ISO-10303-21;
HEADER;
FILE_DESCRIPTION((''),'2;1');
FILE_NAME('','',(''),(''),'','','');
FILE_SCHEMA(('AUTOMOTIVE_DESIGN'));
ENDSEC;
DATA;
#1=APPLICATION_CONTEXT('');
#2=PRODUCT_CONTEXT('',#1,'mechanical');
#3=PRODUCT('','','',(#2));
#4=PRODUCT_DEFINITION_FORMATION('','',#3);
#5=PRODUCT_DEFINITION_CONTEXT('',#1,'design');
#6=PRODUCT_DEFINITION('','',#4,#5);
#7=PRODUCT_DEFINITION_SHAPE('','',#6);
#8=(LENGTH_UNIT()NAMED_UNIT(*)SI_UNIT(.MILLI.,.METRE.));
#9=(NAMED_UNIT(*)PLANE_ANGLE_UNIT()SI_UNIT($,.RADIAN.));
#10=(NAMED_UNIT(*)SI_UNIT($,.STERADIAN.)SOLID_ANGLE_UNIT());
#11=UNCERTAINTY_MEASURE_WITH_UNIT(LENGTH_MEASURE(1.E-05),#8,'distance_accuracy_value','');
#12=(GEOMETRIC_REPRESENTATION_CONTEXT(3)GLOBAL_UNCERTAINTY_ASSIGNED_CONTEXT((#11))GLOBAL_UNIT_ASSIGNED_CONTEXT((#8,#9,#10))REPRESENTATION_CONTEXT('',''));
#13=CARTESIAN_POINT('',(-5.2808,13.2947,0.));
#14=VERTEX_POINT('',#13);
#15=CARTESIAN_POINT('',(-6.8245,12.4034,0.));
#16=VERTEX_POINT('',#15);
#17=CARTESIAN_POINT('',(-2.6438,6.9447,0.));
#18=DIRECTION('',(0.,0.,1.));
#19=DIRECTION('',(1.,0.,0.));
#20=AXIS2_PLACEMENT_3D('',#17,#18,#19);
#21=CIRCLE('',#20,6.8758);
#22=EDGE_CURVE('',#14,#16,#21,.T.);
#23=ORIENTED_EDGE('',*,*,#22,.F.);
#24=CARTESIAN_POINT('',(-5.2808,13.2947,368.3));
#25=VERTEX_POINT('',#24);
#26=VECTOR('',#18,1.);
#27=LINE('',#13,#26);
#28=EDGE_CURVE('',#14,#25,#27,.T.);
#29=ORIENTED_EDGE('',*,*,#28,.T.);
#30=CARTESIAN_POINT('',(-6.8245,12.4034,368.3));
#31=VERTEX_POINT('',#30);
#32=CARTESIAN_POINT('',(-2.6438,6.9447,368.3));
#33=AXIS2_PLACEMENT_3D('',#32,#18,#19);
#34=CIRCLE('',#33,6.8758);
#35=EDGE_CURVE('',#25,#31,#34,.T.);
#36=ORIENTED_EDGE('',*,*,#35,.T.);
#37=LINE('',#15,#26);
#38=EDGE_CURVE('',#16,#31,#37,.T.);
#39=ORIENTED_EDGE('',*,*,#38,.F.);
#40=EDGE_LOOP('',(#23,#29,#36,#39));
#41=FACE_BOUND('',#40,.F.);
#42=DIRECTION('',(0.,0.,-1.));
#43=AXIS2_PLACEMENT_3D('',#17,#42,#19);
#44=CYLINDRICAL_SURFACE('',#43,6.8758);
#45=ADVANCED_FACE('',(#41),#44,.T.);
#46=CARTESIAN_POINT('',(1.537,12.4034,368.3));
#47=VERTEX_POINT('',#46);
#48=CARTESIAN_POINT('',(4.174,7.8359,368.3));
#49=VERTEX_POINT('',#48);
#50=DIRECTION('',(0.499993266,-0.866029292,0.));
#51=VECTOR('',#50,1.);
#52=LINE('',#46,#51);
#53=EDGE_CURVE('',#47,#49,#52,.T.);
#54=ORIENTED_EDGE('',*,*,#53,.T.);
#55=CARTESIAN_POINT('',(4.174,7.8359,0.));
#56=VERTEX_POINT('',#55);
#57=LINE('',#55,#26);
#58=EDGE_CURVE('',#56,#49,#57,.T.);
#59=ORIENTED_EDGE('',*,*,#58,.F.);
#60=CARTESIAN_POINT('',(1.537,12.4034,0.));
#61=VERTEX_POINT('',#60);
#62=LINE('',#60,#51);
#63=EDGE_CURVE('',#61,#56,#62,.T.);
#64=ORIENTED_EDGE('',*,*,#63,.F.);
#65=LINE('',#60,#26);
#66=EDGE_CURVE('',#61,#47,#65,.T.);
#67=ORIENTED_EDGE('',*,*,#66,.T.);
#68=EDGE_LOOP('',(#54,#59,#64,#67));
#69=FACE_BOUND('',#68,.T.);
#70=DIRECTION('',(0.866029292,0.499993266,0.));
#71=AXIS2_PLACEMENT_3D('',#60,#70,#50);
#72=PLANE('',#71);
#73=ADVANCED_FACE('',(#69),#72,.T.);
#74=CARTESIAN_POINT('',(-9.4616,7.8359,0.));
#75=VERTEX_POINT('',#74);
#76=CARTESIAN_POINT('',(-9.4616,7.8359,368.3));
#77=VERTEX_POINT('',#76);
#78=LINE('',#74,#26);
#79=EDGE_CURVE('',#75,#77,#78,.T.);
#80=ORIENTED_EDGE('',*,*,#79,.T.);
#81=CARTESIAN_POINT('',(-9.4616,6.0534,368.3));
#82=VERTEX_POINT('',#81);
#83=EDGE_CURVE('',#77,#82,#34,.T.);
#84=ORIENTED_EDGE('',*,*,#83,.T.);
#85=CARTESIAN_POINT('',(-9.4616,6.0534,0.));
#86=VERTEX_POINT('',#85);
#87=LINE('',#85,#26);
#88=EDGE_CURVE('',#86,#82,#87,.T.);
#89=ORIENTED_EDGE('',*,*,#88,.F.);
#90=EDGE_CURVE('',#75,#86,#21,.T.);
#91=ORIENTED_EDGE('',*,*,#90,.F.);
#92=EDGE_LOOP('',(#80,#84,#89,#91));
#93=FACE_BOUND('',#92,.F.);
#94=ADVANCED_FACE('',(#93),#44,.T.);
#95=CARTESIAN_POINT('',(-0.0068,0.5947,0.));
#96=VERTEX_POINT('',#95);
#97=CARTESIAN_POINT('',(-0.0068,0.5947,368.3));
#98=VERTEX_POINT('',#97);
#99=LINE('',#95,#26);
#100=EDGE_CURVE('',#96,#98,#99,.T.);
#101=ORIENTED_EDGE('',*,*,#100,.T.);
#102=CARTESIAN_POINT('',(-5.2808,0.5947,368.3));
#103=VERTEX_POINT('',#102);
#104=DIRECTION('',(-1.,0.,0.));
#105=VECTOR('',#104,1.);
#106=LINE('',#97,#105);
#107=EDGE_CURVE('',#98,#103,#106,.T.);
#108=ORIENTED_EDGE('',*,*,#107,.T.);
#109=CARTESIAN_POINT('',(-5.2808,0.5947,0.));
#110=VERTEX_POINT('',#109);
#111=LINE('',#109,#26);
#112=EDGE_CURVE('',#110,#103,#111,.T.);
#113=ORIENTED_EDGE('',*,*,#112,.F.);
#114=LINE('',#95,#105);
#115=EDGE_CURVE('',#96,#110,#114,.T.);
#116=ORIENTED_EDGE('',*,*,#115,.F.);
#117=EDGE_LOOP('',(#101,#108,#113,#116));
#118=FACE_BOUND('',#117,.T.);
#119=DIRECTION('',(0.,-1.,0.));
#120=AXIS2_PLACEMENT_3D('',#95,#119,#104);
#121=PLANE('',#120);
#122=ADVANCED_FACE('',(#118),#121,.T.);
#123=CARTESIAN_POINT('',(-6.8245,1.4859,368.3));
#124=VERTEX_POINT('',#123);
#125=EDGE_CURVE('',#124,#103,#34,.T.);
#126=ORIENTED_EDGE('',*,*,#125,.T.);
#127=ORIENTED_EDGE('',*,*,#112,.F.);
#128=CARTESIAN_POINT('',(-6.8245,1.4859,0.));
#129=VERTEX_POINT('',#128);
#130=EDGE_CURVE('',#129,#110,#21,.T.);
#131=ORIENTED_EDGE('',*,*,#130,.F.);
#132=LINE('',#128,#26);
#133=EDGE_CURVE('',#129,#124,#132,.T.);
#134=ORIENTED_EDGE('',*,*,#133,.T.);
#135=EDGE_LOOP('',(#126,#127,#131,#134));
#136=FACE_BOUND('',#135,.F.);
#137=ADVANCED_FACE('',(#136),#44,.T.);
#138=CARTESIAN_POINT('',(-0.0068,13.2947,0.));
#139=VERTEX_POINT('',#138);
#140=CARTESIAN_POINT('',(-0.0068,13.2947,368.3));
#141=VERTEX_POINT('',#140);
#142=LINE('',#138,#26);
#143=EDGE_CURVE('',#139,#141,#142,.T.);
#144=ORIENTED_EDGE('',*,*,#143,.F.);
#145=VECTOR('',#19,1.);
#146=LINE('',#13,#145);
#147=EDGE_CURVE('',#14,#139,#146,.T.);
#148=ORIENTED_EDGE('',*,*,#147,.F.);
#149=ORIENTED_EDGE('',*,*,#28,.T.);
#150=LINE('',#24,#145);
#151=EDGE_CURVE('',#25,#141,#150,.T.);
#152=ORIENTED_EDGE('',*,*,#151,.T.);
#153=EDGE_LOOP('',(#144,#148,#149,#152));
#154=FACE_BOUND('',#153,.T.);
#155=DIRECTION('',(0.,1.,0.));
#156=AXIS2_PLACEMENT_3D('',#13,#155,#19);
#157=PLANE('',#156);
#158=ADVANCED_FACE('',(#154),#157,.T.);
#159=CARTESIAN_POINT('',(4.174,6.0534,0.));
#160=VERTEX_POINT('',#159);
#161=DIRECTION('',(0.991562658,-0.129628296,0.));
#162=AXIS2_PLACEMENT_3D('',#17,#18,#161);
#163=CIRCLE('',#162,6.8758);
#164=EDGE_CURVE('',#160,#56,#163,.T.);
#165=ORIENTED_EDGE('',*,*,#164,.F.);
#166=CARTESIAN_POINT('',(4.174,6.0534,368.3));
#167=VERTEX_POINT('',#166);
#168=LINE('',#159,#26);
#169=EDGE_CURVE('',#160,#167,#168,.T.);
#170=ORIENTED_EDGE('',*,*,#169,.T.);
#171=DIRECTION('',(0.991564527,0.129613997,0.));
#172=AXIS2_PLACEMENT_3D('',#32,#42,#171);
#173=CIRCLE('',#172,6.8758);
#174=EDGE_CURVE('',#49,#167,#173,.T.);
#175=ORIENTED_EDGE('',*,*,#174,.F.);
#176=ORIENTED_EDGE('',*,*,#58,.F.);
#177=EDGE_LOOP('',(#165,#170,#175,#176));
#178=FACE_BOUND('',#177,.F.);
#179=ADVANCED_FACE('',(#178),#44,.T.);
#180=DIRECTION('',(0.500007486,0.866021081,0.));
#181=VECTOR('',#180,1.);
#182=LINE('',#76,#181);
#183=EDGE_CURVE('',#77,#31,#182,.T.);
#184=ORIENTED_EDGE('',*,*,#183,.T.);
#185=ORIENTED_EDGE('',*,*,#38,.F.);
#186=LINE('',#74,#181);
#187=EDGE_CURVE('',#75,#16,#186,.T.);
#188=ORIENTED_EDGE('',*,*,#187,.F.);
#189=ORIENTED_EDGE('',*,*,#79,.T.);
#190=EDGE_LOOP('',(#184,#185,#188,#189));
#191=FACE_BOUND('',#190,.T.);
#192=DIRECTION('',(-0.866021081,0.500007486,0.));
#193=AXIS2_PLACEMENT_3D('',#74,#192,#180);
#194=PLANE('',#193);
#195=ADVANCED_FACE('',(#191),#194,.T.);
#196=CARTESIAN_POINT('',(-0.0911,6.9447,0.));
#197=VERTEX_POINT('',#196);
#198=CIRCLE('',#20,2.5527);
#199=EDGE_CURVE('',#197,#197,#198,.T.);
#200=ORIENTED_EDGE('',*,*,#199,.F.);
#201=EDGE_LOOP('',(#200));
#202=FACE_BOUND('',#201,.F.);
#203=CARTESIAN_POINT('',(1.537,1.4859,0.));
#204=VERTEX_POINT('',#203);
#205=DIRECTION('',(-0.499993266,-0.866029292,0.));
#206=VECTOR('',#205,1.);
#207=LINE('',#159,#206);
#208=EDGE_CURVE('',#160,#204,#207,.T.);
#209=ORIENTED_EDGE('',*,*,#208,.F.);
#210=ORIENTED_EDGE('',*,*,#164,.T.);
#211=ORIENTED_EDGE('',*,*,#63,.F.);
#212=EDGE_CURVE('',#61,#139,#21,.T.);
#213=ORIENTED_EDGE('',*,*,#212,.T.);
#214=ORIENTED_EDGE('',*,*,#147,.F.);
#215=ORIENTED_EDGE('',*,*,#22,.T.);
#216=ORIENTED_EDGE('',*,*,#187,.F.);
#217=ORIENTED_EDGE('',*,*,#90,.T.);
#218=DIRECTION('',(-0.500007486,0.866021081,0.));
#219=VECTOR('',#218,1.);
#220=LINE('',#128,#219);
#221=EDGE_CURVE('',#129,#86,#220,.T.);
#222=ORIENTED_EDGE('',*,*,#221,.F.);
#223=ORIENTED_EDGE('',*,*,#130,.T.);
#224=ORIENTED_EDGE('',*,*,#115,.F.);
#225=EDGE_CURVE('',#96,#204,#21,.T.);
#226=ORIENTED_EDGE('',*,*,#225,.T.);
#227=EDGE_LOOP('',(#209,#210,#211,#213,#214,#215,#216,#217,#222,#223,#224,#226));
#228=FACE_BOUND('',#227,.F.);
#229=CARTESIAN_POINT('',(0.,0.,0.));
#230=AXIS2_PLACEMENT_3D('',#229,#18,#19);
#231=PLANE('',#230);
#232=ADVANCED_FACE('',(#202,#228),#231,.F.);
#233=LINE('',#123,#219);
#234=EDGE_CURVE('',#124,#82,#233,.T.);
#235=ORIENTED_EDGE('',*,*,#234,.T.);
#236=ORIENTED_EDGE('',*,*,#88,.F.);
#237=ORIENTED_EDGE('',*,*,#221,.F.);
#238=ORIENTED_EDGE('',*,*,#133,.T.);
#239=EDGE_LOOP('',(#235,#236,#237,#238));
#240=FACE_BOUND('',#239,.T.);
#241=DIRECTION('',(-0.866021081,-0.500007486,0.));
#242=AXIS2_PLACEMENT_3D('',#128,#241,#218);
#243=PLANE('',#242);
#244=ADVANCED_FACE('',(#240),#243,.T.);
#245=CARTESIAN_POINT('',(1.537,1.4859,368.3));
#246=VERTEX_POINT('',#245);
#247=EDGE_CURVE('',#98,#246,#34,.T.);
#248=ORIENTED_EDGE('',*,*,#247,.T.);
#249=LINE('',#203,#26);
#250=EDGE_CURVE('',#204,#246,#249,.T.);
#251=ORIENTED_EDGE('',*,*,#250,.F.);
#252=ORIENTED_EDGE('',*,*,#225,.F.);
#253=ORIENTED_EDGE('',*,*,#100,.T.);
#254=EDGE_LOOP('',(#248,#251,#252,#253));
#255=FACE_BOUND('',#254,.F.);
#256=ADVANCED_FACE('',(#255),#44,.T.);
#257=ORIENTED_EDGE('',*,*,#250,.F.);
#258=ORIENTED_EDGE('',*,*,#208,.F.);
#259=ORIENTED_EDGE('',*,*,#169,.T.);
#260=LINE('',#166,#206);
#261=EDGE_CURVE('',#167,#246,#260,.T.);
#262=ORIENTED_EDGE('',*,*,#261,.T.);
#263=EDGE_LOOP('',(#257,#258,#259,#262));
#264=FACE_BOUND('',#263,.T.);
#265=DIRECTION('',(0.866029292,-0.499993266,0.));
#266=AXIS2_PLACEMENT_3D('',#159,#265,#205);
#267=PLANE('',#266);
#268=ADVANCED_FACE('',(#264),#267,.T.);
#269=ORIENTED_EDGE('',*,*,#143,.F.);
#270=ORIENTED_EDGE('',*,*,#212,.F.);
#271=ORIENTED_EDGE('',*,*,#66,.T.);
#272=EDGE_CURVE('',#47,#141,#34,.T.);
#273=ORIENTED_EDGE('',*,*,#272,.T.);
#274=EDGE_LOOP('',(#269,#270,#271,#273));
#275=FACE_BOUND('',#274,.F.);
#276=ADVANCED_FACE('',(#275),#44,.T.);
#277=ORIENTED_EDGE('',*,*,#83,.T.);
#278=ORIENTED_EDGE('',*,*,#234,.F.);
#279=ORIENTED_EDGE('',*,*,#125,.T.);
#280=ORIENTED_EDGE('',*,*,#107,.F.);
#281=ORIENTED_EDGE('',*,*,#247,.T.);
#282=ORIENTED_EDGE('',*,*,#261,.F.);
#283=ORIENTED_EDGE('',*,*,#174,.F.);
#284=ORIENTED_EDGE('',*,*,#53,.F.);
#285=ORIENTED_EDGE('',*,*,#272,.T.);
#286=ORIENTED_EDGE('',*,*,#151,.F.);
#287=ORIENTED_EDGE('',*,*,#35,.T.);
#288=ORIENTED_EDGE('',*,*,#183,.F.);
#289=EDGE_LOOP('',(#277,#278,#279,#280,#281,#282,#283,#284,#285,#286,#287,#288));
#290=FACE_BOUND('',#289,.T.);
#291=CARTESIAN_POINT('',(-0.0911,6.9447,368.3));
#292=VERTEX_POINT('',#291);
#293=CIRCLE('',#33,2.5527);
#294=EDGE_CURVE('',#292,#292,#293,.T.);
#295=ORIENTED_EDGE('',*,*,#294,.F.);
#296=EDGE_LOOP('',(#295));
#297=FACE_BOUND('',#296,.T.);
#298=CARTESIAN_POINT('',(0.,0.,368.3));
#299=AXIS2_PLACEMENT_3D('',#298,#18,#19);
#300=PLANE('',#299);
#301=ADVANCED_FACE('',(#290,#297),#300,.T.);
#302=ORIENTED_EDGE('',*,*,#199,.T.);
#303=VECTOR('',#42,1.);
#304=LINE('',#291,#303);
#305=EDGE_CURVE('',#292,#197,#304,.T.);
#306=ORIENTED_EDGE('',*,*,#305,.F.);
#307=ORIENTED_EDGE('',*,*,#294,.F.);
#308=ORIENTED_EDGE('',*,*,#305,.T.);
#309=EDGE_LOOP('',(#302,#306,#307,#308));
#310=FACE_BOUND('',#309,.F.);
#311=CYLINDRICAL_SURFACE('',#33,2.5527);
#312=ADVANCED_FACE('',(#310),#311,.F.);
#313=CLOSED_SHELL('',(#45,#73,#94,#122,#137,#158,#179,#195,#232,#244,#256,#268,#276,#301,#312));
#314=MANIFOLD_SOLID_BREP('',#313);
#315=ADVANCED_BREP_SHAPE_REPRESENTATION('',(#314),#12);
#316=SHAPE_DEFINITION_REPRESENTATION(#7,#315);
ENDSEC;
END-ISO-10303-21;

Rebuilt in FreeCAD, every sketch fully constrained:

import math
import FreeCAD as App
import Part
import Sketcher
from FreeCAD import Vector
Q = App.Units.Quantity

doc = App.newDocument("Part")
body = doc.addObject("PartDesign::Body", "Body")

# Sketch on XY plane
sketch1 = body.newObject("Sketcher::SketchObject", "Sketch")
sketch1.AttachmentSupport = (doc.getObject("XY_Plane"), [""])
sketch1.MapMode = "FlatFace"
sketch1.addGeometry(Part.ArcOfCircle(Part.Circle(Vector(-2.6, 6.9, 0), Vector(0, 0, 1), 6.9), math.radians(-7.45), math.radians(7.45)), False)
sketch1.addGeometry(Part.LineSegment(Vector(4.2, 7.8, 0), Vector(1.5, 12.4, 0)), False)
sketch1.addGeometry(Part.ArcOfCircle(Part.Circle(Vector(-2.6, 6.9, 0), Vector(0, 0, 1), 6.9), math.radians(52.55), math.radians(67.45)), False)
sketch1.addGeometry(Part.LineSegment(Vector(0, 13.3, 0), Vector(-5.3, 13.3, 0)), False)
sketch1.addGeometry(Part.ArcOfCircle(Part.Circle(Vector(-2.6, 6.9, 0), Vector(0, 0, 1), 6.9), math.radians(112.55), math.radians(127.45)), False)
sketch1.addGeometry(Part.LineSegment(Vector(-6.8, 12.4, 0), Vector(-9.5, 7.8, 0)), False)
sketch1.addGeometry(Part.ArcOfCircle(Part.Circle(Vector(-2.6, 6.9, 0), Vector(0, 0, 1), 6.9), math.radians(172.55), math.radians(187.45)), False)
sketch1.addGeometry(Part.LineSegment(Vector(-9.5, 6.1, 0), Vector(-6.8, 1.5, 0)), False)
sketch1.addGeometry(Part.ArcOfCircle(Part.Circle(Vector(-2.6, 6.9, 0), Vector(0, 0, 1), 6.9), math.radians(-127.45), math.radians(-112.55)), False)
sketch1.addGeometry(Part.LineSegment(Vector(-5.3, 0.6, 0), Vector(0, 0.6, 0)), False)
sketch1.addGeometry(Part.ArcOfCircle(Part.Circle(Vector(-2.6, 6.9, 0), Vector(0, 0, 1), 6.9), math.radians(-67.45), math.radians(-52.55)), False)
sketch1.addGeometry(Part.LineSegment(Vector(1.5, 1.5, 0), Vector(4.2, 6.1, 0)), False)
sketch1.addConstraint(Sketcher.Constraint("Coincident", 0, 2, 1, 1))
sketch1.addConstraint(Sketcher.Constraint("Coincident", 1, 2, 2, 1))
sketch1.addConstraint(Sketcher.Constraint("Coincident", 2, 2, 3, 1))
sketch1.addConstraint(Sketcher.Constraint("Coincident", 3, 2, 4, 1))
sketch1.addConstraint(Sketcher.Constraint("Coincident", 4, 2, 5, 1))
sketch1.addConstraint(Sketcher.Constraint("Coincident", 5, 2, 6, 1))
sketch1.addConstraint(Sketcher.Constraint("Coincident", 6, 2, 7, 1))
sketch1.addConstraint(Sketcher.Constraint("Coincident", 7, 2, 8, 1))
sketch1.addConstraint(Sketcher.Constraint("Coincident", 8, 2, 9, 1))
sketch1.addConstraint(Sketcher.Constraint("Coincident", 9, 2, 10, 1))
sketch1.addConstraint(Sketcher.Constraint("Coincident", 10, 2, 11, 1))
sketch1.addConstraint(Sketcher.Constraint("Coincident", 11, 2, 0, 1))
sketch1.addConstraint(Sketcher.Constraint("Horizontal", 3))
sketch1.addConstraint(Sketcher.Constraint("Horizontal", 9))
sketch1.addConstraint(Sketcher.Constraint("Coincident", 2, 3, 0, 3))
sketch1.addConstraint(Sketcher.Constraint("Coincident", 4, 3, 0, 3))
sketch1.addConstraint(Sketcher.Constraint("Coincident", 6, 3, 0, 3))
sketch1.addConstraint(Sketcher.Constraint("Coincident", 8, 3, 0, 3))
sketch1.addConstraint(Sketcher.Constraint("Coincident", 10, 3, 0, 3))
sketch1.addConstraint(Sketcher.Constraint("Equal", 0, 2))
sketch1.addConstraint(Sketcher.Constraint("Equal", 2, 4))
sketch1.addConstraint(Sketcher.Constraint("Equal", 4, 6))
sketch1.addConstraint(Sketcher.Constraint("Equal", 6, 8))
sketch1.addConstraint(Sketcher.Constraint("Equal", 8, 10))
sketch1.addConstraint(Sketcher.Constraint("Parallel", 1, 7))
sketch1.addConstraint(Sketcher.Constraint("Parallel", 5, 11))
sketch1.addConstraint(Sketcher.Constraint("Horizontal", 1, 2, 4, 2))
sketch1.addConstraint(Sketcher.Constraint("Horizontal", 0, 2, 5, 2))
sketch1.addConstraint(Sketcher.Constraint("Horizontal", 7, 2, 10, 2))
sketch1.addConstraint(Sketcher.Constraint("Vertical", 5, 2, 6, 2))
sketch1.addConstraint(Sketcher.Constraint("Vertical", 3, 2, 8, 2))
sketch1.addConstraint(Sketcher.Constraint("Radius", 0, Q("0.2707 in")))
sketch1.addConstraint(Sketcher.Constraint("Angle", 1, Q("119.9996 deg")))
sketch1.addConstraint(Sketcher.Constraint("DistanceY", 0, 3, 2, 2, Q("0.25 in")))
sketch1.addConstraint(Sketcher.Constraint("DistanceY", 10, 2, 0, 2, Q("0.25 in")))
sketch1.addConstraint(Sketcher.Constraint("DistanceY", -1, 1, 0, 2, Q("0.3085 in")))
sketch1.addConstraint(Sketcher.Constraint("DistanceX", -1, 1, 1, 2, Q("0.0605 in")))
pad1 = body.newObject("PartDesign::Pad", "Pad")
pad1.Profile = sketch1
pad1.Length = Q("14.5 in")

# Sketch on XY plane
sketch2 = body.newObject("Sketcher::SketchObject", "Sketch001")
sketch2.AttachmentSupport = (doc.getObject("XY_Plane"), [""])
sketch2.MapMode = "FlatFace"
sketch2.AttachmentOffset = App.Placement(Vector(0, 0, 14.5 * 25.4), App.Rotation())
sketch2.addGeometry(Part.Circle(Vector(-2.6, 6.9, 0), Vector(0, 0, 1), 2.6), False)
sketch2.addConstraint(Sketcher.Constraint("Diameter", 0, Q("0.201 in")))
sketch2.addConstraint(Sketcher.Constraint("DistanceX", 0, 3, -1, 1, 2.6438))
sketch2.addConstraint(Sketcher.Constraint("DistanceY", -1, 1, 0, 3, 6.9447))
pocket1 = body.newObject("PartDesign::Pocket", "Pocket")
pocket1.Profile = sketch2
pocket1.Length = Q("14.5 in")

doc.recompute()
